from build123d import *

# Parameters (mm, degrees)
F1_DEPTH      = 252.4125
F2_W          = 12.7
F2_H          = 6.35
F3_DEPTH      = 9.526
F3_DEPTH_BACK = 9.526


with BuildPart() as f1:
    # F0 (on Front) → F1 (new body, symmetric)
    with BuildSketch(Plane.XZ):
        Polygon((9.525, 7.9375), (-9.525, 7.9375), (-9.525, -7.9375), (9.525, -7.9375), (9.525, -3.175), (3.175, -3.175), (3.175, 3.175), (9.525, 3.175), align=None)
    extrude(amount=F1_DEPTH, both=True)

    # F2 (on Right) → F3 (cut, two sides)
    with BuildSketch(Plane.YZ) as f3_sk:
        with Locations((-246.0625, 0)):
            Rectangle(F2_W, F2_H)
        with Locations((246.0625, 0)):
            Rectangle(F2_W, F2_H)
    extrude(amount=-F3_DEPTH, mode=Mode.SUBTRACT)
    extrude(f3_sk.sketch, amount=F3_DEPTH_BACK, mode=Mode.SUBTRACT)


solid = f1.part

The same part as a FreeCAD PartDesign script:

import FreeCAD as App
import Part
import Sketcher

V = App.Vector
Q = App.Units.Quantity

doc = App.newDocument("Part")
body = doc.addObject("PartDesign::Body", "Body")

sketch1 = doc.addObject("Sketcher::SketchObject", "Sketch")
body.addObject(sketch1)
sketch1.AttachmentSupport = (doc.XZ_Plane, [""])
sketch1.MapMode = "FlatFace"
sketch1.addGeometry([
    Part.LineSegment(V(9.525, 7.9375, 0), V(-9.525, 7.9375, 0)),
    Part.LineSegment(V(-9.525, 7.9375, 0), V(-9.525, -7.9375, 0)),
    Part.LineSegment(V(-9.525, -7.9375, 0), V(9.525, -7.9375, 0)),
    Part.LineSegment(V(9.525, -7.9375, 0), V(9.525, -3.175, 0)),
    Part.LineSegment(V(9.525, -3.175, 0), V(3.175, -3.175, 0)),
    Part.LineSegment(V(3.175, -3.175, 0), V(3.175, 3.175, 0)),
    Part.LineSegment(V(3.175, 3.175, 0), V(9.525, 3.175, 0)),
    Part.LineSegment(V(9.525, 3.175, 0), V(9.525, 7.9375, 0)),
], False)
sketch1.addConstraint([
    Sketcher.Constraint("Coincident", 0, 2, 1, 1),
    Sketcher.Constraint("Coincident", 1, 2, 2, 1),
    Sketcher.Constraint("Coincident", 2, 2, 3, 1),
    Sketcher.Constraint("Coincident", 3, 2, 4, 1),
    Sketcher.Constraint("Coincident", 4, 2, 5, 1),
    Sketcher.Constraint("Coincident", 5, 2, 6, 1),
    Sketcher.Constraint("Coincident", 6, 2, 7, 1),
    Sketcher.Constraint("Coincident", 7, 2, 0, 1),
    Sketcher.Constraint("Horizontal", 0),
    Sketcher.Constraint("Vertical", 1),
    Sketcher.Constraint("Horizontal", 2),
    Sketcher.Constraint("Vertical", 3),
    Sketcher.Constraint("Horizontal", 4),
    Sketcher.Constraint("Vertical", 5),
    Sketcher.Constraint("Horizontal", 6),
    Sketcher.Constraint("Vertical", 7),
    Sketcher.Constraint("Symmetric", 0, 2, 2, 2, -1, 1),
    Sketcher.Constraint("Symmetric", 3, 2, 6, 2, -1),
    Sketcher.Constraint("Equal", 6, 5),
    Sketcher.Constraint("DistanceX", 0, 2, 0, 1, Q("0.75 in")),
    Sketcher.Constraint("DistanceX", 4, 2, 4, 1, Q("0.25 in")),
    Sketcher.Constraint("DistanceY", 1, 2, 1, 1, Q("0.625 in")),
])
pad1 = doc.addObject("PartDesign::Pad", "Pad")
body.addObject(pad1)
pad1.Profile = sketch1
pad1.Length = Q("19.875 in")
pad1.Midplane = True

sketch2 = doc.addObject("Sketcher::SketchObject", "Sketch001")
body.addObject(sketch2)
sketch2.AttachmentSupport = (doc.YZ_Plane, [""])
sketch2.MapMode = "FlatFace"
sketch2.addGeometry([
    Part.LineSegment(V(-252.4125, 3.175, 0), V(-252.4125, -3.175, 0)),
    Part.LineSegment(V(-252.4125, -3.175, 0), V(-239.7125, -3.175, 0)),
    Part.LineSegment(V(-239.7125, -3.175, 0), V(-239.7125, 3.175, 0)),
    Part.LineSegment(V(-239.7125, 3.175, 0), V(-252.4125, 3.175, 0)),
    Part.LineSegment(V(239.7125, 3.175, 0), V(239.7125, -3.175, 0)),
    Part.LineSegment(V(239.7125, -3.175, 0), V(252.4125, -3.175, 0)),
    Part.LineSegment(V(252.4125, -3.175, 0), V(252.4125, 3.175, 0)),
    Part.LineSegment(V(252.4125, 3.175, 0), V(239.7125, 3.175, 0)),
], False)
sketch2.addConstraint([
    Sketcher.Constraint("Coincident", 0, 2, 1, 1),
    Sketcher.Constraint("Coincident", 1, 2, 2, 1),
    Sketcher.Constraint("Coincident", 2, 2, 3, 1),
    Sketcher.Constraint("Coincident", 3, 2, 0, 1),
    Sketcher.Constraint("Coincident", 4, 2, 5, 1),
    Sketcher.Constraint("Coincident", 5, 2, 6, 1),
    Sketcher.Constraint("Coincident", 6, 2, 7, 1),
    Sketcher.Constraint("Coincident", 7, 2, 4, 1),
    Sketcher.Constraint("Vertical", 0),
    Sketcher.Constraint("Horizontal", 1),
    Sketcher.Constraint("Vertical", 2),
    Sketcher.Constraint("Horizontal", 3),
    Sketcher.Constraint("Vertical", 4),
    Sketcher.Constraint("Horizontal", 5),
    Sketcher.Constraint("Vertical", 6),
    Sketcher.Constraint("Horizontal", 7),
    Sketcher.Constraint("Symmetric", 2, 2, 4, 2, -1, 1),
    Sketcher.Constraint("Symmetric", 0, 2, 6, 2, -1, 1),
    Sketcher.Constraint("Horizontal", 1, 2, 4, 2),
    Sketcher.Constraint("DistanceX", 1, 1, 1, 2, Q("0.5 in")),
    Sketcher.Constraint("DistanceY", 0, 2, 0, 1, Q("0.25 in")),
    Sketcher.Constraint("DistanceX", 0, 2, -1, 1, Q("9.9375 in")),
])
pocket1 = doc.addObject("PartDesign::Pocket", "Pocket")
body.addObject(pocket1)
pocket1.Profile = sketch2
pocket1.Type = "ThroughAll"
pocket1.Midplane = True

doc.recompute()
